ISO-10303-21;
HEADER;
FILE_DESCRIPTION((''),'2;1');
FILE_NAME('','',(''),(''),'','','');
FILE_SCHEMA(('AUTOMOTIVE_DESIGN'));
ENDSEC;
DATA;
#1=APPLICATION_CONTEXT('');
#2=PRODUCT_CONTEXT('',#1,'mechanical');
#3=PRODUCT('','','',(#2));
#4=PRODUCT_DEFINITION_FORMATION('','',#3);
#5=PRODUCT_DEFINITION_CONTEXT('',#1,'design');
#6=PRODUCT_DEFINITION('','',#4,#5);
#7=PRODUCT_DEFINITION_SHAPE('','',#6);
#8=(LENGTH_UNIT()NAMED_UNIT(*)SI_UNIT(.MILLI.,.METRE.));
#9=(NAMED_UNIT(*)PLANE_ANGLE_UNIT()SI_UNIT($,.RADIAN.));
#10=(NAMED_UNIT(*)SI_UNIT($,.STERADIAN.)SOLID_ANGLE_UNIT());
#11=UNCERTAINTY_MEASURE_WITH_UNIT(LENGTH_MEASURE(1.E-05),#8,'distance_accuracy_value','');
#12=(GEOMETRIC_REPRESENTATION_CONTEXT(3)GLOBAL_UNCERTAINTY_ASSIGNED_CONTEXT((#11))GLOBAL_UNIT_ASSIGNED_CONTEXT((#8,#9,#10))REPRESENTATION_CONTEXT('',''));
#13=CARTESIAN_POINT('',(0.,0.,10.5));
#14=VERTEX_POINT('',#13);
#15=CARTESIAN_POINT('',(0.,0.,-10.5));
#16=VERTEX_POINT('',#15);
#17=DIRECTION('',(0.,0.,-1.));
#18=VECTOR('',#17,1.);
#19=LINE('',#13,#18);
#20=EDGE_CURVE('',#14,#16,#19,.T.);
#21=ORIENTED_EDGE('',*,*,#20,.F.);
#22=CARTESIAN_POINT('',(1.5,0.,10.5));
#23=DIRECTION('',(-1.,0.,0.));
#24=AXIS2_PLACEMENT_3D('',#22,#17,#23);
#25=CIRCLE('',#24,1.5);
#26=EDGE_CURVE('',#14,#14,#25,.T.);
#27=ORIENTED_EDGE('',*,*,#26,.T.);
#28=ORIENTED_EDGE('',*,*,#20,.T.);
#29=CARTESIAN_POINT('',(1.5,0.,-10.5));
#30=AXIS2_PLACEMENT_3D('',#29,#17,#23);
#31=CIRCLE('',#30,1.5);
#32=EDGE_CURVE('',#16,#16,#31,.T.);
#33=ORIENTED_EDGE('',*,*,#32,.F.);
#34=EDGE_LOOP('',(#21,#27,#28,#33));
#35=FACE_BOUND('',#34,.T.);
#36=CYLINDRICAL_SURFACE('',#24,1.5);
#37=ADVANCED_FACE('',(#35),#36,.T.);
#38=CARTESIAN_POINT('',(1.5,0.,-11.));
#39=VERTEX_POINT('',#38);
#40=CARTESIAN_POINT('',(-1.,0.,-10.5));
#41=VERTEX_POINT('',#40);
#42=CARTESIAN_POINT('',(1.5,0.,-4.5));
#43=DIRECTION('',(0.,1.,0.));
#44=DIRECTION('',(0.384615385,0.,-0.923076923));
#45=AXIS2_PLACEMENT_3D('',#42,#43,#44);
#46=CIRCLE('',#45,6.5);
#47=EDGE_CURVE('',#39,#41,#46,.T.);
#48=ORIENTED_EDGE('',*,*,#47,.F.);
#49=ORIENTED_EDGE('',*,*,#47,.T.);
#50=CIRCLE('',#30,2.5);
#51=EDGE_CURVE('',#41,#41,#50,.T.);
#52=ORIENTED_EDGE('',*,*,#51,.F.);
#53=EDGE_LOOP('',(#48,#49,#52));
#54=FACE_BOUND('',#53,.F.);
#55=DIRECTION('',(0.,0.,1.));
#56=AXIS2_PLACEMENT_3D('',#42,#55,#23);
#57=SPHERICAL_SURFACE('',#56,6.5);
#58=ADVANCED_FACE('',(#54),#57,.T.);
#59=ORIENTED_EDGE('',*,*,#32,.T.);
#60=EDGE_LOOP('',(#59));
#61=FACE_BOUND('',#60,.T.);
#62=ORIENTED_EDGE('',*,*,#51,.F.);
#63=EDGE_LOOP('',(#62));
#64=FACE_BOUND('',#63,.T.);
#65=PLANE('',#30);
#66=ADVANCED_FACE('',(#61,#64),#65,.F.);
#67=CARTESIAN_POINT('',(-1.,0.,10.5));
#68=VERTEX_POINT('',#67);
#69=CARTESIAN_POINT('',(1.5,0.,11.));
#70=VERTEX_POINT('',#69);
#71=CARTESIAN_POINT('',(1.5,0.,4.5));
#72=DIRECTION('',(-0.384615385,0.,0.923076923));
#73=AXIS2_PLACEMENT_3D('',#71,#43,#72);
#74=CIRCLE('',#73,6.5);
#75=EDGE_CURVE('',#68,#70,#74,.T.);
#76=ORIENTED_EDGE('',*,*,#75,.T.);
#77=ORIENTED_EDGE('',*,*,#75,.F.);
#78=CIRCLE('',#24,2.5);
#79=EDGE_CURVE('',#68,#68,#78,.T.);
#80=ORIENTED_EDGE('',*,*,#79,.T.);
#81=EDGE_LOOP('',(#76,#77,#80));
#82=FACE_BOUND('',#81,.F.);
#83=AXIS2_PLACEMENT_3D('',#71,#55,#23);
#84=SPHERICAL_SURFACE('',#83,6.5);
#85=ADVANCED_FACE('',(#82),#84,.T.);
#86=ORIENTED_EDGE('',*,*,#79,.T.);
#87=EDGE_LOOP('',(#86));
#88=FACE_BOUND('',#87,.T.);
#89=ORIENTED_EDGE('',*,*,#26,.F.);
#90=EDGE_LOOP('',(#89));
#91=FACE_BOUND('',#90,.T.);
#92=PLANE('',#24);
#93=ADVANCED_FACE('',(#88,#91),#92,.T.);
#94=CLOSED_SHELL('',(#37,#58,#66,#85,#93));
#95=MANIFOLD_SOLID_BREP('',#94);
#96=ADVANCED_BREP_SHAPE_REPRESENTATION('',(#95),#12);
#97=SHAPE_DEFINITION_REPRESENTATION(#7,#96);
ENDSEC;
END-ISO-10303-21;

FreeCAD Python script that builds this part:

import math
import FreeCAD as App
import Part
import Sketcher
from FreeCAD import Vector
Q = App.Units.Quantity

doc = App.newDocument("Part")
body = doc.addObject("PartDesign::Body", "Body")

sketch1 = body.newObject("Sketcher::SketchObject", "Sketch")
sketch1.AttachmentSupport = (doc.getObject("XZ_Plane"), [""])
sketch1.MapMode = "FlatFace"
sketch1.addGeometry([
    Part.LineSegment(Vector(0, 10.5, 0), Vector(-1, 10.5, 0)),
    Part.ArcOfCircle(Part.Circle(Vector(1.5, 4.5, 0), Vector(0, 0, 1), 6.5), math.radians(90), math.radians(113)),
    Part.LineSegment(Vector(1.5, 11, 0), Vector(1.5, -11, 0)),
    Part.ArcOfCircle(Part.Circle(Vector(1.5, -4.5, 0), Vector(0, 0, 1), 6.5), math.radians(-113), math.radians(-90)),
    Part.LineSegment(Vector(-1, -10.5, 0), Vector(0, -10.5, 0)),
    Part.LineSegment(Vector(0, -10.5, 0), Vector(0, 10.5, 0)),
], False)
sketch1.addGeometry(Part.LineSegment(Vector(1.5, 11, 0), Vector(1.5, -11, 0)), True)
sketch1.addConstraint([
    Sketcher.Constraint("Coincident", 0, 2, 1, 2),
    Sketcher.Constraint("Coincident", 1, 1, 2, 1),
    Sketcher.Constraint("Coincident", 2, 2, 3, 2),
    Sketcher.Constraint("Coincident", 3, 1, 4, 1),
    Sketcher.Constraint("Coincident", 4, 2, 5, 1),
    Sketcher.Constraint("Coincident", 5, 2, 0, 1),
    Sketcher.Constraint("Horizontal", 0),
    Sketcher.Constraint("Vertical", 2),
    Sketcher.Constraint("Horizontal", 4),
    Sketcher.Constraint("Vertical", 5),
    Sketcher.Constraint("Vertical", 6),
    Sketcher.Constraint("Coincident", 6, 1, 1, 1),
    Sketcher.Constraint("Equal", 1, 3),
    Sketcher.Constraint("Symmetric", 4, 2, 5, 2, -1, 1),
    Sketcher.Constraint("Symmetric", 1, 3, 3, 3, -1),
    Sketcher.Constraint("Vertical", 3, 3, 1, 1),
    Sketcher.Constraint("Equal", 2, 6),
    Sketcher.Constraint("DistanceX", 0, 2, 0, 1, Q("1 mm")),
    Sketcher.Constraint("Radius", 1, Q("6.5 mm")),
    Sketcher.Constraint("DistanceY", 2, 2, 2, 1, Q("22 mm")),
    Sketcher.Constraint("DistanceY", 5, 1, 5, 2, Q("21 mm")),
])
revolution = body.newObject("PartDesign::Revolution", "Revolution")
revolution.Profile = sketch1
revolution.ReferenceAxis = (sketch1, ["Axis0"])
revolution.Angle = 360

doc.recompute()
